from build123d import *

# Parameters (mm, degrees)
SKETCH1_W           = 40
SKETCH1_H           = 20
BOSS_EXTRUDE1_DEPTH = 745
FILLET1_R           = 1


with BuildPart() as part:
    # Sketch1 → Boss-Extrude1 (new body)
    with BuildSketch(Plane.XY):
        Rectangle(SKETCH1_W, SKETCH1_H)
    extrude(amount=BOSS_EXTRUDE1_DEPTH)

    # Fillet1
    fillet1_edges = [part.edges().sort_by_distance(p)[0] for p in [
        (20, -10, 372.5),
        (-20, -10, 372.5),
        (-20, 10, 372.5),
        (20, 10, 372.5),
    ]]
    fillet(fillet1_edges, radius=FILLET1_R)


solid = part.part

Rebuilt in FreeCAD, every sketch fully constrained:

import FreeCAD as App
import Part
import Sketcher

V = App.Vector


def edges_at(feature, points):
    """Names of the edges that pass closest to the given points."""
    edges = feature.Shape.Edges
    near = lambda p: min(range(len(edges)), key=lambda i: edges[i].distToShape(Part.Vertex(*p))[0])
    return sorted({f"Edge{near(p) + 1}" for p in points})

doc = App.newDocument("Part")
body = doc.addObject("PartDesign::Body", "Body")

# Sketch on XY plane
sketch1 = body.newObject("Sketcher::SketchObject", "Sketch")
sketch1.AttachmentSupport = (doc.getObject("XY_Plane"), [""])
sketch1.MapMode = "FlatFace"
sketch1.addGeometry([
    Part.LineSegment(V(-20, 10, 0), V(-20, -10, 0)),
    Part.LineSegment(V(-20, -10, 0), V(20, -10, 0)),
    Part.LineSegment(V(20, -10, 0), V(20, 10, 0)),
    Part.LineSegment(V(20, 10, 0), V(-20, 10, 0)),
], False)
sketch1.addConstraint([
    Sketcher.Constraint("Coincident", 0, 2, 1, 1),
    Sketcher.Constraint("Coincident", 1, 2, 2, 1),
    Sketcher.Constraint("Coincident", 2, 2, 3, 1),
    Sketcher.Constraint("Coincident", 3, 2, 0, 1),
    Sketcher.Constraint("Vertical", 0),
    Sketcher.Constraint("Horizontal", 1),
    Sketcher.Constraint("Vertical", 2),
    Sketcher.Constraint("Horizontal", 3),
    Sketcher.Constraint("Symmetric", 0, 2, 2, 2, -1, 1),
    Sketcher.Constraint("DistanceX", 1, 1, 1, 2, 40.0),
    Sketcher.Constraint("DistanceY", 0, 2, 0, 1, 20.0),
])
pad1 = body.newObject("PartDesign::Pad", "Pad")
pad1.Profile = sketch1
pad1.Length = 745
doc.recompute()

fillet = body.newObject("PartDesign::Fillet", "Fillet")
fillet.Base = (pad1, edges_at(pad1, [
    (20, -10, 372.5),
    (-20, -10, 372.5),
    (-20, 10, 372.5),
    (20, 10, 372.5),
]))
fillet.Radius = 1

doc.recompute()
